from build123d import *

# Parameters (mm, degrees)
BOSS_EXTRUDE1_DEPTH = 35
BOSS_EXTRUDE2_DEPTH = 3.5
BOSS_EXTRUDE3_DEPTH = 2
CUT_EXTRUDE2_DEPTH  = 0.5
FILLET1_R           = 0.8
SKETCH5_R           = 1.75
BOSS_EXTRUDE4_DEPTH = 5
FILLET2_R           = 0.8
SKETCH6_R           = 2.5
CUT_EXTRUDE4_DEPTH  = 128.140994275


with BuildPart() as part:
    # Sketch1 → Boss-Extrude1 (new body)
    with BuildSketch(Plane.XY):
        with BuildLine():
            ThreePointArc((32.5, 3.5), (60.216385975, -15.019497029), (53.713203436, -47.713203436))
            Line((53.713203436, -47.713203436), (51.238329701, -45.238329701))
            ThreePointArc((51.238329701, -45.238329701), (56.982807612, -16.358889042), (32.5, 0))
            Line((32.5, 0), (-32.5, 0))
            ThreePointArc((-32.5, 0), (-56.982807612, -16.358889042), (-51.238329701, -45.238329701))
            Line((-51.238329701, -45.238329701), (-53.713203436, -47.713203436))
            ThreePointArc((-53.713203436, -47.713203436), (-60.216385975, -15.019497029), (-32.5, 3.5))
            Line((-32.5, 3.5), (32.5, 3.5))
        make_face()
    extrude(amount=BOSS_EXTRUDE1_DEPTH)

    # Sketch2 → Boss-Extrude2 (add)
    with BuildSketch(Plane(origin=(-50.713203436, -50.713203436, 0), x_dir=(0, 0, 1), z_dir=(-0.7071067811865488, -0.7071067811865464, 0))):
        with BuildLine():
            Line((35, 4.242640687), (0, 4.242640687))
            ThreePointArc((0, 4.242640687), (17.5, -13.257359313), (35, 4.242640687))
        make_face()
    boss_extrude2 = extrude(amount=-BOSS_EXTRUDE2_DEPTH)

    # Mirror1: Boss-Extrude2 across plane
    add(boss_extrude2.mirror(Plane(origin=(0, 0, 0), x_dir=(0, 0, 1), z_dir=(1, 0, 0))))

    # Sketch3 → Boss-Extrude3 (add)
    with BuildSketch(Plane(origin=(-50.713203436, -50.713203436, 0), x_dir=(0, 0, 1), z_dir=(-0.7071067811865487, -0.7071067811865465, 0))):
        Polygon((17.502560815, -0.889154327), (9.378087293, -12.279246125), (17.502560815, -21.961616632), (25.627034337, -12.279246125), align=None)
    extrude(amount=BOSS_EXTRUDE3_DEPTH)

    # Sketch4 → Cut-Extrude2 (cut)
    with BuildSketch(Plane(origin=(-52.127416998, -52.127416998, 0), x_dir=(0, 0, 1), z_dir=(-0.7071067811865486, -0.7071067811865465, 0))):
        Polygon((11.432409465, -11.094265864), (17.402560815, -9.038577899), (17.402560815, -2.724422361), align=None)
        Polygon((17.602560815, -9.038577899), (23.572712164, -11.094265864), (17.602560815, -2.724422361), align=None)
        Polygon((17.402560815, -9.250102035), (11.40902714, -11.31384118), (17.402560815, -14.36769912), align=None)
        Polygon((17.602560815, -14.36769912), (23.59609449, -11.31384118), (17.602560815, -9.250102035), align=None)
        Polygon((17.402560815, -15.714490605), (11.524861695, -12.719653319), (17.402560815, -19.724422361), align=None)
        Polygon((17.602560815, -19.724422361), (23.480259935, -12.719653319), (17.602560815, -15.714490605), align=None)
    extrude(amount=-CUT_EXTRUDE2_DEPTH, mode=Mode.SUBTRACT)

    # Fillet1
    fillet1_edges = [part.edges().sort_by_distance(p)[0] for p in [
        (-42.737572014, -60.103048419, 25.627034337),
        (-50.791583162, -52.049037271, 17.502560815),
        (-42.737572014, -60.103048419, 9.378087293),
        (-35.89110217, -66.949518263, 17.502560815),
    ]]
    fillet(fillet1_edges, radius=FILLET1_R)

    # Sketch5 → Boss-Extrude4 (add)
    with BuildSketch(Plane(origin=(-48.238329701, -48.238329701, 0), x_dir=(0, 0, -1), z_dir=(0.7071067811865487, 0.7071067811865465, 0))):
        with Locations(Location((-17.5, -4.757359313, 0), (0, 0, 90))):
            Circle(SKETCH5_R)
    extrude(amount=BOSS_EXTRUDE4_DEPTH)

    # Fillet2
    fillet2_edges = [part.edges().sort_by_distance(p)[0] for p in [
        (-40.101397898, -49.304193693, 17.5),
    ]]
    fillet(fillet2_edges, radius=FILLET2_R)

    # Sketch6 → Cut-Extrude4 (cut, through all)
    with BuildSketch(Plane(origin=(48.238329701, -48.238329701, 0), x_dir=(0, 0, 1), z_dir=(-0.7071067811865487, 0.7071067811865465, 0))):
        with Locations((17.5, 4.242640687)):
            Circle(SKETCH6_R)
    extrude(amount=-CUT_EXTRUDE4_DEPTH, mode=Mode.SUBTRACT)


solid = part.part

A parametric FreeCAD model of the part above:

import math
import FreeCAD as App
import Part
import Sketcher
from FreeCAD import Vector
Q = App.Units.Quantity


def edges_at(feature, points):
    """Names of the edges that pass closest to the given points."""
    edges = feature.Shape.Edges
    near = lambda p: min(range(len(edges)), key=lambda i: edges[i].distToShape(Part.Vertex(*p))[0])
    return sorted({f"Edge{near(p) + 1}" for p in points})


def add_polygon(sketch, points):
    """Adds a closed chain of lines whose ends are joined by coincident constraints."""
    first, n = sketch.GeometryCount, len(points)
    for a, b in zip(points, points[1:] + points[:1]):
        sketch.addGeometry(Part.LineSegment(App.Vector(*a, 0), App.Vector(*b, 0)), False)
    for i in range(n):
        sketch.addConstraint(Sketcher.Constraint("Coincident", first + i, 2, first + (i + 1) % n, 1))

doc = App.newDocument("Part")
params = doc.addObject("Spreadsheet::Sheet", "Params")
for row, (alias, value) in enumerate([
    ("sketch1_radius", "30 mm"),
    ("sketch1_radius2", "26.5 mm"),
    ("sketch1_width", "65 mm"),
    ("pad1_length", "35 mm"),
    ("sketch2_radius", "17.5 mm"),
    ("pad2_length", "3.5 mm"),
    ("pad3_length", "2 mm"),
    ("pocket1_length", "0.5 mm"),
    ("fillet_radius", "0.8 mm"),
    ("sketch5_diameter", "3.5 mm"),
    ("pad4_length", "5 mm"),
    ("fillet2_radius", "0.8 mm"),
    ("sketch6_diameter", "5 mm"),
], start=1):
    params.set(f"A{row}", alias)
    params.set(f"B{row}", "=" + value)
    params.setAlias(f"B{row}", alias)

body = doc.addObject("PartDesign::Body", "Body")

# Sketch on XY plane
sketch1 = body.newObject("Sketcher::SketchObject", "Sketch")
sketch1.AttachmentSupport = (doc.getObject("XY_Plane"), [""])
sketch1.MapMode = "FlatFace"
sketch1.addGeometry([
    Part.ArcOfCircle(Part.Circle(Vector(32.5, -26.5, 0), Vector(0, 0, 1), 30), math.radians(-45), math.radians(90)),  # 0
    Part.LineSegment(Vector(32.5, 3.5, 0), Vector(-32.5, 3.5, 0)),  # 1
    Part.ArcOfCircle(Part.Circle(Vector(-32.5, -26.5, 0), Vector(0, 0, 1), 30), math.radians(90), math.radians(225)),  # 2
    Part.LineSegment(Vector(-53.7, -47.7, 0), Vector(-51.2, -45.2, 0)),  # 3
    Part.ArcOfCircle(Part.Circle(Vector(-32.5, -26.5, 0), Vector(0, 0, 1), 26.5), math.radians(90), math.radians(225)),  # 4
    Part.LineSegment(Vector(-32.5, 0, 0), Vector(32.5, 0, 0)),  # 5
    Part.ArcOfCircle(Part.Circle(Vector(32.5, -26.5, 0), Vector(0, 0, 1), 26.5), math.radians(-45), math.radians(90)),  # 6
    Part.LineSegment(Vector(51.2, -45.2, 0), Vector(53.7, -47.7, 0)),  # 7
], False)
sketch1.addConstraint([
    Sketcher.Constraint("Tangent", 0, 2, 1, 1),
    Sketcher.Constraint("Tangent", 1, 2, 2, 1),
    Sketcher.Constraint("Coincident", 2, 2, 3, 1),
    Sketcher.Constraint("Coincident", 3, 2, 4, 2),
    Sketcher.Constraint("Tangent", 4, 1, 5, 1),
    Sketcher.Constraint("Tangent", 5, 2, 6, 2),
    Sketcher.Constraint("Coincident", 6, 1, 7, 1),
    Sketcher.Constraint("Coincident", 7, 2, 0, 1),
    Sketcher.Constraint("Horizontal", 1),
    Sketcher.Constraint("Horizontal", 5),
    Sketcher.Constraint("Coincident", 4, 3, 2, 3),
    Sketcher.Constraint("Coincident", 6, 3, 0, 3),
    Sketcher.Constraint("Equal", 0, 2),
    Sketcher.Constraint("Symmetric", 4, 1, 5, 2, -1, 1),
    Sketcher.Constraint("Perpendicular", 3, 7),
    Sketcher.Constraint("Horizontal", 3, 2, 6, 1),
    Sketcher.Constraint("Horizontal", 2, 2, 7, 2),
    Sketcher.Constraint("Radius", 0, 30.0),
    Sketcher.Constraint("Radius", 4, 26.5),
    Sketcher.Constraint("DistanceX", 1, 2, 1, 1, 65.0),
    Sketcher.Constraint("DistanceX", 3, 2, -1, 1, 51.23833),
])
sketch1.setExpression("Constraints[17]", "Params.sketch1_radius")
sketch1.setExpression("Constraints[18]", "Params.sketch1_radius2")
sketch1.setExpression("Constraints[19]", "Params.sketch1_width")
pad1 = body.newObject("PartDesign::Pad", "Pad")
pad1.Profile = sketch1
pad1.setExpression("Length", "Params.pad1_length")

# Sketch on an angled plane
sketch2 = body.newObject("Sketcher::SketchObject", "Sketch001")
sketch2.Placement = App.Placement(Vector(-50.713203, -50.713203, 0), App.Rotation(Vector(0, 0, 1), Vector(-0.707106781, 0.707106781, 0), Vector(-0.707106781, -0.707106781, 0), "ZXY"))
sketch2.addGeometry([
    Part.LineSegment(Vector(35, 4, 0), Vector(0, 4, 0)),
    Part.ArcOfCircle(Part.Circle(Vector(18, 4, 0), Vector(0, 0, 1), 18), math.radians(180), math.radians(360)),
], False)
sketch2.addConstraint([
    Sketcher.Constraint("Coincident", 0, 1, 1, 2),
    Sketcher.Constraint("Coincident", 1, 1, 0, 2),
    Sketcher.Constraint("Horizontal", 0),
    Sketcher.Constraint("PointOnObject", 1, 1, -2),
    Sketcher.Constraint("Horizontal", 1, 3, 0, 1),
    Sketcher.Constraint("Radius", 1, 17.5),
    Sketcher.Constraint("DistanceY", -1, 1, 1, 3, 4.242641),
])
sketch2.setExpression("Constraints[5]", "Params.sketch2_radius")
pad2 = body.newObject("PartDesign::Pad", "Pad001")
pad2.Profile = sketch2
pad2.setExpression("Length", "Params.pad2_length")
pad2.Reversed = True
doc.recompute()

mirrored = body.newObject("PartDesign::Mirrored", "Mirrored")
mirrored.Originals = [pad2]
mirrored.MirrorPlane = (doc.getObject("YZ_Plane"), [""])
body.Tip = mirrored

# Sketch on an angled plane
sketch3 = body.newObject("Sketcher::SketchObject", "Sketch002")
sketch3.Placement = App.Placement(Vector(-50.713203, -50.713203, 0), App.Rotation(Vector(0, 0, 1), Vector(-0.707106781, 0.707106781, 0), Vector(-0.707106781, -0.707106781, 0), "ZXY"))
add_polygon(sketch3, [(18, -1), (9, -12), (18, -22), (26, -12)])  # lines 0-3
sketch3.addConstraint([
    Sketcher.Constraint("Horizontal", 0, 2, 2, 2),
    Sketcher.Constraint("Vertical", 1, 2, 3, 2),
    Sketcher.Constraint("Equal", 1, 2),
    Sketcher.Constraint("Angle", 1, Q("-50 deg")),
    Sketcher.Constraint("Angle", 0, Q("-125.5 deg")),
    Sketcher.Constraint("DistanceX", -1, 1, 1, 2, 17.502561),
    Sketcher.Constraint("DistanceY", 1, 2, 0, 2, 9.682371),
    Sketcher.Constraint("DistanceY", 0, 2, -1, 1, 12.279246),
])
pad3 = body.newObject("PartDesign::Pad", "Pad002")
pad3.Profile = sketch3
pad3.setExpression("Length", "Params.pad3_length")

# Sketch on an angled plane
sketch4 = body.newObject("Sketcher::SketchObject", "Sketch003")
sketch4.Placement = App.Placement(Vector(-52.127417, -52.127417, 0), App.Rotation(Vector(0, 0, 1), Vector(-0.707106781, 0.707106781, 0), Vector(-0.707106781, -0.707106781, 0), "ZXY"))
add_polygon(sketch4, [(11.4, -11.1), (17.4, -9), (17.4, -2.7)])  # lines 0-2
add_polygon(sketch4, [(17.6, -9), (23.6, -11.1), (17.6, -2.7)])  # lines 3-5
add_polygon(sketch4, [(17.4, -9.3), (11.4, -11.3), (17.4, -14.4)])  # lines 6-8
add_polygon(sketch4, [(17.6, -14.4), (23.6, -11.3), (17.6, -9.3)])  # lines 9-11
add_polygon(sketch4, [(17.4, -15.7), (11.5, -12.7), (17.4, -19.7)])  # lines 12-14
add_polygon(sketch4, [(17.6, -19.7), (23.5, -12.7), (17.6, -15.7)])  # lines 15-17
sketch4.addConstraint([
    Sketcher.Constraint("Vertical", 1),
    Sketcher.Constraint("Vertical", 5),
    Sketcher.Constraint("Vertical", 8),
    Sketcher.Constraint("Vertical", 11),
    Sketcher.Constraint("Vertical", 14),
    Sketcher.Constraint("Vertical", 17),
    Sketcher.Constraint("Parallel", 0, 6),
    Sketcher.Constraint("Parallel", 3, 10),
    Sketcher.Constraint("Parallel", 7, 12),
    Sketcher.Constraint("Parallel", 9, 16),
    Sketcher.Constraint("Horizontal", 2, 2, 3, 2),
    Sketcher.Constraint("Horizontal", 1, 2, 4, 2),
    Sketcher.Constraint("Horizontal", 0, 2, 5, 2),
    Sketcher.Constraint("Horizontal", 6, 2, 9, 2),
    Sketcher.Constraint("Horizontal", 8, 2, 10, 2),
    Sketcher.Constraint("Horizontal", 7, 2, 11, 2),
    Sketcher.Constraint("Horizontal", 12, 2, 15, 2),
    Sketcher.Constraint("Horizontal", 14, 2, 16, 2),
    Sketcher.Constraint("Horizontal", 13, 2, 17, 2),
    Sketcher.Constraint("Vertical", 1, 2, 7, 2),
    Sketcher.Constraint("Vertical", 5, 2, 10, 2),
    Sketcher.Constraint("Vertical", 8, 2, 13, 2),
    Sketcher.Constraint("Vertical", 11, 2, 16, 2),
    Sketcher.Constraint("Equal", 0, 3),
    Sketcher.Constraint("Angle", 0, Q("19 deg")),
    Sketcher.Constraint("Angle", 7, Q("-27 deg")),
    Sketcher.Constraint("Angle", 13, Q("-50 deg")),
    Sketcher.Constraint("Angle", 2, Q("-125.5 deg")),
    Sketcher.Constraint("DistanceX", 1, 2, 4, 2, 0.2),
    Sketcher.Constraint("Distance", 7, 6.7267),
    Sketcher.Constraint("DistanceY", 14, 1, 14, 2, 4.009932),
    Sketcher.Constraint("DistanceY", 7, 2, -1, 1, 14.367699),
    Sketcher.Constraint("DistanceY", 1, 1, 1, 2, 6.314156),
    Sketcher.Constraint("DistanceX", -1, 1, 0, 2, 17.402561),
    Sketcher.Constraint("DistanceY", 14, 2, -1, 1, 15.714491),
    Sketcher.Constraint("DistanceY", 6, 2, 1, 2, 8.589419),
])
pocket1 = body.newObject("PartDesign::Pocket", "Pocket")
pocket1.Profile = sketch4
pocket1.setExpression("Length", "Params.pocket1_length")
doc.recompute()

fillet = body.newObject("PartDesign::Fillet", "Fillet")
fillet.Base = (pocket1, edges_at(pocket1, [
    (-42.738, -60.103, 25.627),
    (-50.792, -52.049, 17.503),
    (-42.738, -60.103, 9.378),
    (-35.891, -66.95, 17.503),
]))
fillet.setExpression("Radius", "Params.fillet_radius")

# Sketch on an angled plane
sketch5 = body.newObject("Sketcher::SketchObject", "Sketch004")
sketch5.Placement = App.Placement(Vector(-48.23833, -48.23833, 0), App.Rotation(Vector(0, 0, -1), Vector(-0.707106781, 0.707106781, 0), Vector(0.707106781, 0.707106781, 0), "ZXY"))
sketch5.addGeometry(Part.Circle(Vector(-17.5, -4.8, 0), Vector(0, 0, 1), 1.8), False)
sketch5.addConstraint([
    Sketcher.Constraint("Diameter", 0, 3.5),
    Sketcher.Constraint("DistanceX", 0, 3, -1, 1, 17.5),
    Sketcher.Constraint("DistanceY", 0, 3, -1, 1, 4.757359),
])
sketch5.setExpression("Constraints[0]", "Params.sketch5_diameter")
pad4 = body.newObject("PartDesign::Pad", "Pad003")
pad4.Profile = sketch5
pad4.setExpression("Length", "Params.pad4_length")
doc.recompute()

fillet2 = body.newObject("PartDesign::Fillet", "Fillet001")
fillet2.Base = (pad4, edges_at(pad4, [(-40.101, -49.304, 17.5)]))
fillet2.setExpression("Radius", "Params.fillet2_radius")

# Sketch on an angled plane
sketch6 = body.newObject("Sketcher::SketchObject", "Sketch005")
sketch6.Placement = App.Placement(Vector(48.23833, -48.23833, 0), App.Rotation(Vector(0, 0, 1), Vector(0.707106781, 0.707106781, 0), Vector(-0.707106781, 0.707106781, 0), "ZXY"))
sketch6.addGeometry(Part.Circle(Vector(17.5, 4.2, 0), Vector(0, 0, 1), 2.5), False)
sketch6.addConstraint([
    Sketcher.Constraint("Diameter", 0, 5.0),
    Sketcher.Constraint("DistanceX", -1, 1, 0, 3, 17.5),
    Sketcher.Constraint("DistanceY", -1, 1, 0, 3, 4.242641),
])
sketch6.setExpression("Constraints[0]", "Params.sketch6_diameter")
pocket2 = body.newObject("PartDesign::Pocket", "Pocket001")
pocket2.Profile = sketch6
pocket2.Type = "ThroughAll"

doc.recompute()
